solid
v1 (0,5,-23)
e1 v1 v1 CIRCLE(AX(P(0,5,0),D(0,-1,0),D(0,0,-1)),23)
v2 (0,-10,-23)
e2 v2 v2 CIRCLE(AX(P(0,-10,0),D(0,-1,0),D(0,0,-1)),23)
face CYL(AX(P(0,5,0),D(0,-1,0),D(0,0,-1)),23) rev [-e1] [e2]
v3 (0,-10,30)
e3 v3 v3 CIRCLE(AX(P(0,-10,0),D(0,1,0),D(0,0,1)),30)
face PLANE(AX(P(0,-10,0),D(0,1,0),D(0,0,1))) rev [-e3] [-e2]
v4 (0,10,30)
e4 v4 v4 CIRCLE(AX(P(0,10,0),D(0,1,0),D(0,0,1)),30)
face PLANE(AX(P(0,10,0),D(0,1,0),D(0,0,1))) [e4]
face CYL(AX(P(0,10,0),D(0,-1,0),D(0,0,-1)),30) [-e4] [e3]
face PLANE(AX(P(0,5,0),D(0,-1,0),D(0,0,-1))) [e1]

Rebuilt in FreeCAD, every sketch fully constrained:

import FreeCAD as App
import Part
import Sketcher
from FreeCAD import Vector
Q = App.Units.Quantity

doc = App.newDocument("Part")
params = doc.addObject("Spreadsheet::Sheet", "Params")
for row, (alias, value) in enumerate([
    ("sketch1_diameter", "60 mm"),
    ("pad1_length", "20 mm"),
    ("sketch2_diameter", "46 mm"),
    ("pocket1_length", "15 mm"),
], start=1):
    params.set(f"A{row}", alias)
    params.set(f"B{row}", "=" + value)
    params.setAlias(f"B{row}", alias)

body = doc.addObject("PartDesign::Body", "Body")

# Sketch on XZ plane
sketch1 = body.newObject("Sketcher::SketchObject", "Sketch")
sketch1.AttachmentSupport = (doc.getObject("XZ_Plane"), [""])
sketch1.MapMode = "FlatFace"
sketch1.addGeometry(Part.Circle(Vector(0, 0, 0), Vector(0, 0, 1), 30), False)
sketch1.addConstraint([
    Sketcher.Constraint("Coincident", 0, 3, -1, 1),
    Sketcher.Constraint("Diameter", 0, Q("60 mm")),
])
sketch1.setExpression("Constraints[1]", "Params.sketch1_diameter")
pad1 = body.newObject("PartDesign::Pad", "Pad")
pad1.Profile = sketch1
pad1.setExpression("Length", "Params.pad1_length")
pad1.Midplane = True

# Sketch on XZ plane
sketch2 = body.newObject("Sketcher::SketchObject", "Sketch001")
sketch2.AttachmentSupport = (doc.getObject("XZ_Plane"), [""])
sketch2.MapMode = "FlatFace"
sketch2.AttachmentOffset = App.Placement(Vector(0, 0, 10), App.Rotation())
sketch2.addGeometry(Part.Circle(Vector(0, 0, 0), Vector(0, 0, 1), 23), False)
sketch2.addConstraint([
    Sketcher.Constraint("Coincident", 0, 3, -1, 1),
    Sketcher.Constraint("Diameter", 0, Q("46 mm")),
])
sketch2.setExpression("Constraints[1]", "Params.sketch2_diameter")
pocket1 = body.newObject("PartDesign::Pocket", "Pocket")
pocket1.Profile = sketch2
pocket1.setExpression("Length", "Params.pocket1_length")

doc.recompute()
